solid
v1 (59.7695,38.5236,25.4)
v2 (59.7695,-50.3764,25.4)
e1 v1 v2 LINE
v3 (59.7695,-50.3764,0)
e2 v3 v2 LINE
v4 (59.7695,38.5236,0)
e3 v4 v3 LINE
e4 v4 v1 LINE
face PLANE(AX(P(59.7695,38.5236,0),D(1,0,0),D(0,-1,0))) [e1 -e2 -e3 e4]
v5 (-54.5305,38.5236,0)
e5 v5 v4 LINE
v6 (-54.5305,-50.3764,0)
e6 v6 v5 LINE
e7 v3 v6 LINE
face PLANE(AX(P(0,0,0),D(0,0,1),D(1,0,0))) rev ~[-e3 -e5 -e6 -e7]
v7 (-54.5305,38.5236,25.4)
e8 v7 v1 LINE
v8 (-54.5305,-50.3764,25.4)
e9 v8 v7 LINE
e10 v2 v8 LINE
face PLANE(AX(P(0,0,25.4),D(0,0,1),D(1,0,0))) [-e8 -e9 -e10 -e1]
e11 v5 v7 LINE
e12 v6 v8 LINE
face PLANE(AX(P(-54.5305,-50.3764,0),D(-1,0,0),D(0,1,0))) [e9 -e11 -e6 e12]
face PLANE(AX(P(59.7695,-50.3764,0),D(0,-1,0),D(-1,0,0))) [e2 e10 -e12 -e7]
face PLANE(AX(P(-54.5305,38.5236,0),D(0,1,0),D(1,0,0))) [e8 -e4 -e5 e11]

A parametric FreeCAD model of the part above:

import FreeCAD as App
import Part
import Sketcher
Q = App.Units.Quantity


def add_polygon(sketch, points):
    """Adds a closed chain of lines whose ends are joined by coincident constraints."""
    first, n = sketch.GeometryCount, len(points)
    for a, b in zip(points, points[1:] + points[:1]):
        sketch.addGeometry(Part.LineSegment(App.Vector(*a, 0), App.Vector(*b, 0)), False)
    for i in range(n):
        sketch.addConstraint(Sketcher.Constraint("Coincident", first + i, 2, first + (i + 1) % n, 1))

doc = App.newDocument("Part")
body = doc.addObject("PartDesign::Body", "Body")

# Sketch on XY plane
sketch1 = body.newObject("Sketcher::SketchObject", "Sketch")
sketch1.AttachmentSupport = (doc.getObject("XY_Plane"), [""])
sketch1.MapMode = "FlatFace"
add_polygon(sketch1, [(60, 39), (-55, 39), (-55, -50), (60, -50)])  # lines 0-3
sketch1.addConstraint([
    Sketcher.Constraint("Horizontal", 0),
    Sketcher.Constraint("Vertical", 1),
    Sketcher.Constraint("Horizontal", 2),
    Sketcher.Constraint("Vertical", 3),
    Sketcher.Constraint("DistanceX", 0, 2, 0, 1, Q("4.5 in")),
    Sketcher.Constraint("DistanceY", 1, 2, 1, 1, Q("3.5 in")),
    Sketcher.Constraint("DistanceX", 0, 2, -1, 1, Q("54.5305 mm")),
    Sketcher.Constraint("DistanceY", -1, 1, 0, 2, Q("38.5236 mm")),
])
pad1 = body.newObject("PartDesign::Pad", "Pad")
pad1.Profile = sketch1
pad1.Length = Q("1 in")

doc.recompute()
